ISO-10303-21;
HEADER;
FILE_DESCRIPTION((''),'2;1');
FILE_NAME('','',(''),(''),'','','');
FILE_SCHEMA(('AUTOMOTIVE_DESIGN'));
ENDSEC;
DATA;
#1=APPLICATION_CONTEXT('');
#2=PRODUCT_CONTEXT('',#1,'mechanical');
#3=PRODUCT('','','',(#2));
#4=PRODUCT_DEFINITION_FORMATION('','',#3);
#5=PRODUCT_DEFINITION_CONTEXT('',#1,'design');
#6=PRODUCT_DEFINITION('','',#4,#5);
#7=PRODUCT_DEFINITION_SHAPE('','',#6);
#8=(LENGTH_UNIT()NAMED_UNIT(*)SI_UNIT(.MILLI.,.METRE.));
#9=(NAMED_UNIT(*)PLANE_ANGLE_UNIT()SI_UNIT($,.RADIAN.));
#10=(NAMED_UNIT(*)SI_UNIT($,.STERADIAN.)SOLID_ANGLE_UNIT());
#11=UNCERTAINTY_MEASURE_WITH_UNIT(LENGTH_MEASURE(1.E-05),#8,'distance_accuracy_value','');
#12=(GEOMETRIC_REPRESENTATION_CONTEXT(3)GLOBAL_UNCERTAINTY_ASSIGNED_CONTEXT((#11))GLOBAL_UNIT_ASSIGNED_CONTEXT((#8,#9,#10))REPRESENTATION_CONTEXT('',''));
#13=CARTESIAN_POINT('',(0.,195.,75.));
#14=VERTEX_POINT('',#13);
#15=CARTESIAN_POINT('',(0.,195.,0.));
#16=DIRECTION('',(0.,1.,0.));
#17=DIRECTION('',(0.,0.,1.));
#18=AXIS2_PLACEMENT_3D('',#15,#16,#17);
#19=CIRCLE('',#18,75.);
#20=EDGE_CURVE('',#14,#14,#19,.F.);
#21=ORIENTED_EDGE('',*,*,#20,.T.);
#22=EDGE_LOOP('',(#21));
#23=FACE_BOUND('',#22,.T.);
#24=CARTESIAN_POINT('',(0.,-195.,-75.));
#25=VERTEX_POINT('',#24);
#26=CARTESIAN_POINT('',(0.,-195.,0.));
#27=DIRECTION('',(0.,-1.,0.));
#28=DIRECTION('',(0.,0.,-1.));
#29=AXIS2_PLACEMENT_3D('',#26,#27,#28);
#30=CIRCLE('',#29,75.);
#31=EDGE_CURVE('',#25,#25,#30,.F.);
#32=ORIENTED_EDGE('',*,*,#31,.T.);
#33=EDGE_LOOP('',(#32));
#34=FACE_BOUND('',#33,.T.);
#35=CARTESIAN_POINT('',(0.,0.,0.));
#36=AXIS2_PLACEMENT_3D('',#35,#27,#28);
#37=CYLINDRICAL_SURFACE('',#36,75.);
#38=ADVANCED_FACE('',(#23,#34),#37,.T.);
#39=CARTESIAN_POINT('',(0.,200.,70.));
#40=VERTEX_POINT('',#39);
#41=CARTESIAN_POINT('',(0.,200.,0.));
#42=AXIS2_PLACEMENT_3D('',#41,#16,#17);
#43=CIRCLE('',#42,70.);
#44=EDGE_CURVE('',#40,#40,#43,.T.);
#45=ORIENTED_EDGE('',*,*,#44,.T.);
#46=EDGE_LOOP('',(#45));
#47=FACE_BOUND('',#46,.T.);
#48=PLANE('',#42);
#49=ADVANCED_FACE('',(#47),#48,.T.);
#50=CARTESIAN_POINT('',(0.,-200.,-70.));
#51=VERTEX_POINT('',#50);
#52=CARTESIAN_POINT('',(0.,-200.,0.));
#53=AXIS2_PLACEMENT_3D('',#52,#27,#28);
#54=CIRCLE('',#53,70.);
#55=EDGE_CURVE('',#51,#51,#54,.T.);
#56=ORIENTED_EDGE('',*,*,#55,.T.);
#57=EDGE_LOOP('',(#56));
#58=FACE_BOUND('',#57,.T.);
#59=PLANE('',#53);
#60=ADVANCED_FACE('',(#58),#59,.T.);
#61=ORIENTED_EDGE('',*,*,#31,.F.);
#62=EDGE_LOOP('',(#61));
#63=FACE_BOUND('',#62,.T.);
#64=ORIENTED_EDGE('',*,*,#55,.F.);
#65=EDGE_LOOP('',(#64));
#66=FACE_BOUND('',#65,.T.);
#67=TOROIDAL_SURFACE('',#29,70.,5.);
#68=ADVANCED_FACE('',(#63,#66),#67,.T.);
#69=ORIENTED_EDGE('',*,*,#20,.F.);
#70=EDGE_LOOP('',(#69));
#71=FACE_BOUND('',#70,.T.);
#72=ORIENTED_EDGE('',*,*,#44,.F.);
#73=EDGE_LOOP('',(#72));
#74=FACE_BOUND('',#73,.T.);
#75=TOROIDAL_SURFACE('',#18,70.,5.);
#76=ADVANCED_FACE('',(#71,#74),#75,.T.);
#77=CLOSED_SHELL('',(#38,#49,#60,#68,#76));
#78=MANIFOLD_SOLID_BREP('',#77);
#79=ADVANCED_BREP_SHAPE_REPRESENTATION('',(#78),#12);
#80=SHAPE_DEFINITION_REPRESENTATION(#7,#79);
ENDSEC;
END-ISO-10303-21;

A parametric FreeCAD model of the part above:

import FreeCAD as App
import Part
import Sketcher
from FreeCAD import Vector


def edges_at(feature, points):
    """Names of the edges that pass closest to the given points."""
    edges = feature.Shape.Edges
    near = lambda p: min(range(len(edges)), key=lambda i: edges[i].distToShape(Part.Vertex(*p))[0])
    return sorted({f"Edge{near(p) + 1}" for p in points})


def add_polygon(sketch, points):
    """Adds a closed chain of lines whose ends are joined by coincident constraints."""
    first, n = sketch.GeometryCount, len(points)
    for a, b in zip(points, points[1:] + points[:1]):
        sketch.addGeometry(Part.LineSegment(App.Vector(*a, 0), App.Vector(*b, 0)), False)
    for i in range(n):
        sketch.addConstraint(Sketcher.Constraint("Coincident", first + i, 2, first + (i + 1) % n, 1))

doc = App.newDocument("Part")
body = doc.addObject("PartDesign::Body", "Body")

# Sketch on XY plane
sketch1 = body.newObject("Sketcher::SketchObject", "Sketch")
sketch1.AttachmentSupport = (doc.getObject("XY_Plane"), [""])
sketch1.MapMode = "FlatFace"
add_polygon(sketch1, [(0, 200), (0, -200), (75, -200), (75, 200)])  # lines 0-3
sketch1.addConstraint([
    Sketcher.Constraint("Vertical", 0),
    Sketcher.Constraint("Horizontal", 1),
    Sketcher.Constraint("Vertical", 2),
    Sketcher.Constraint("Horizontal", 3),
    Sketcher.Constraint("Symmetric", 0, 2, 3, 2, -1, 1),
    Sketcher.Constraint("DistanceX", 1, 1, 1, 2, 75.0),
    Sketcher.Constraint("DistanceY", 0, 2, 0, 1, 400.0),
])
revolution = body.newObject("PartDesign::Revolution", "Revolution")
revolution.Profile = sketch1
revolution.ReferenceAxis = (sketch1, ["V_Axis"])
revolution.Angle = 360
doc.recompute()

fillet = body.newObject("PartDesign::Fillet", "Fillet")
fillet.Base = (revolution, edges_at(revolution, [(0, 200, 75), (0, -200, 75)]))
fillet.Radius = 5

doc.recompute()
